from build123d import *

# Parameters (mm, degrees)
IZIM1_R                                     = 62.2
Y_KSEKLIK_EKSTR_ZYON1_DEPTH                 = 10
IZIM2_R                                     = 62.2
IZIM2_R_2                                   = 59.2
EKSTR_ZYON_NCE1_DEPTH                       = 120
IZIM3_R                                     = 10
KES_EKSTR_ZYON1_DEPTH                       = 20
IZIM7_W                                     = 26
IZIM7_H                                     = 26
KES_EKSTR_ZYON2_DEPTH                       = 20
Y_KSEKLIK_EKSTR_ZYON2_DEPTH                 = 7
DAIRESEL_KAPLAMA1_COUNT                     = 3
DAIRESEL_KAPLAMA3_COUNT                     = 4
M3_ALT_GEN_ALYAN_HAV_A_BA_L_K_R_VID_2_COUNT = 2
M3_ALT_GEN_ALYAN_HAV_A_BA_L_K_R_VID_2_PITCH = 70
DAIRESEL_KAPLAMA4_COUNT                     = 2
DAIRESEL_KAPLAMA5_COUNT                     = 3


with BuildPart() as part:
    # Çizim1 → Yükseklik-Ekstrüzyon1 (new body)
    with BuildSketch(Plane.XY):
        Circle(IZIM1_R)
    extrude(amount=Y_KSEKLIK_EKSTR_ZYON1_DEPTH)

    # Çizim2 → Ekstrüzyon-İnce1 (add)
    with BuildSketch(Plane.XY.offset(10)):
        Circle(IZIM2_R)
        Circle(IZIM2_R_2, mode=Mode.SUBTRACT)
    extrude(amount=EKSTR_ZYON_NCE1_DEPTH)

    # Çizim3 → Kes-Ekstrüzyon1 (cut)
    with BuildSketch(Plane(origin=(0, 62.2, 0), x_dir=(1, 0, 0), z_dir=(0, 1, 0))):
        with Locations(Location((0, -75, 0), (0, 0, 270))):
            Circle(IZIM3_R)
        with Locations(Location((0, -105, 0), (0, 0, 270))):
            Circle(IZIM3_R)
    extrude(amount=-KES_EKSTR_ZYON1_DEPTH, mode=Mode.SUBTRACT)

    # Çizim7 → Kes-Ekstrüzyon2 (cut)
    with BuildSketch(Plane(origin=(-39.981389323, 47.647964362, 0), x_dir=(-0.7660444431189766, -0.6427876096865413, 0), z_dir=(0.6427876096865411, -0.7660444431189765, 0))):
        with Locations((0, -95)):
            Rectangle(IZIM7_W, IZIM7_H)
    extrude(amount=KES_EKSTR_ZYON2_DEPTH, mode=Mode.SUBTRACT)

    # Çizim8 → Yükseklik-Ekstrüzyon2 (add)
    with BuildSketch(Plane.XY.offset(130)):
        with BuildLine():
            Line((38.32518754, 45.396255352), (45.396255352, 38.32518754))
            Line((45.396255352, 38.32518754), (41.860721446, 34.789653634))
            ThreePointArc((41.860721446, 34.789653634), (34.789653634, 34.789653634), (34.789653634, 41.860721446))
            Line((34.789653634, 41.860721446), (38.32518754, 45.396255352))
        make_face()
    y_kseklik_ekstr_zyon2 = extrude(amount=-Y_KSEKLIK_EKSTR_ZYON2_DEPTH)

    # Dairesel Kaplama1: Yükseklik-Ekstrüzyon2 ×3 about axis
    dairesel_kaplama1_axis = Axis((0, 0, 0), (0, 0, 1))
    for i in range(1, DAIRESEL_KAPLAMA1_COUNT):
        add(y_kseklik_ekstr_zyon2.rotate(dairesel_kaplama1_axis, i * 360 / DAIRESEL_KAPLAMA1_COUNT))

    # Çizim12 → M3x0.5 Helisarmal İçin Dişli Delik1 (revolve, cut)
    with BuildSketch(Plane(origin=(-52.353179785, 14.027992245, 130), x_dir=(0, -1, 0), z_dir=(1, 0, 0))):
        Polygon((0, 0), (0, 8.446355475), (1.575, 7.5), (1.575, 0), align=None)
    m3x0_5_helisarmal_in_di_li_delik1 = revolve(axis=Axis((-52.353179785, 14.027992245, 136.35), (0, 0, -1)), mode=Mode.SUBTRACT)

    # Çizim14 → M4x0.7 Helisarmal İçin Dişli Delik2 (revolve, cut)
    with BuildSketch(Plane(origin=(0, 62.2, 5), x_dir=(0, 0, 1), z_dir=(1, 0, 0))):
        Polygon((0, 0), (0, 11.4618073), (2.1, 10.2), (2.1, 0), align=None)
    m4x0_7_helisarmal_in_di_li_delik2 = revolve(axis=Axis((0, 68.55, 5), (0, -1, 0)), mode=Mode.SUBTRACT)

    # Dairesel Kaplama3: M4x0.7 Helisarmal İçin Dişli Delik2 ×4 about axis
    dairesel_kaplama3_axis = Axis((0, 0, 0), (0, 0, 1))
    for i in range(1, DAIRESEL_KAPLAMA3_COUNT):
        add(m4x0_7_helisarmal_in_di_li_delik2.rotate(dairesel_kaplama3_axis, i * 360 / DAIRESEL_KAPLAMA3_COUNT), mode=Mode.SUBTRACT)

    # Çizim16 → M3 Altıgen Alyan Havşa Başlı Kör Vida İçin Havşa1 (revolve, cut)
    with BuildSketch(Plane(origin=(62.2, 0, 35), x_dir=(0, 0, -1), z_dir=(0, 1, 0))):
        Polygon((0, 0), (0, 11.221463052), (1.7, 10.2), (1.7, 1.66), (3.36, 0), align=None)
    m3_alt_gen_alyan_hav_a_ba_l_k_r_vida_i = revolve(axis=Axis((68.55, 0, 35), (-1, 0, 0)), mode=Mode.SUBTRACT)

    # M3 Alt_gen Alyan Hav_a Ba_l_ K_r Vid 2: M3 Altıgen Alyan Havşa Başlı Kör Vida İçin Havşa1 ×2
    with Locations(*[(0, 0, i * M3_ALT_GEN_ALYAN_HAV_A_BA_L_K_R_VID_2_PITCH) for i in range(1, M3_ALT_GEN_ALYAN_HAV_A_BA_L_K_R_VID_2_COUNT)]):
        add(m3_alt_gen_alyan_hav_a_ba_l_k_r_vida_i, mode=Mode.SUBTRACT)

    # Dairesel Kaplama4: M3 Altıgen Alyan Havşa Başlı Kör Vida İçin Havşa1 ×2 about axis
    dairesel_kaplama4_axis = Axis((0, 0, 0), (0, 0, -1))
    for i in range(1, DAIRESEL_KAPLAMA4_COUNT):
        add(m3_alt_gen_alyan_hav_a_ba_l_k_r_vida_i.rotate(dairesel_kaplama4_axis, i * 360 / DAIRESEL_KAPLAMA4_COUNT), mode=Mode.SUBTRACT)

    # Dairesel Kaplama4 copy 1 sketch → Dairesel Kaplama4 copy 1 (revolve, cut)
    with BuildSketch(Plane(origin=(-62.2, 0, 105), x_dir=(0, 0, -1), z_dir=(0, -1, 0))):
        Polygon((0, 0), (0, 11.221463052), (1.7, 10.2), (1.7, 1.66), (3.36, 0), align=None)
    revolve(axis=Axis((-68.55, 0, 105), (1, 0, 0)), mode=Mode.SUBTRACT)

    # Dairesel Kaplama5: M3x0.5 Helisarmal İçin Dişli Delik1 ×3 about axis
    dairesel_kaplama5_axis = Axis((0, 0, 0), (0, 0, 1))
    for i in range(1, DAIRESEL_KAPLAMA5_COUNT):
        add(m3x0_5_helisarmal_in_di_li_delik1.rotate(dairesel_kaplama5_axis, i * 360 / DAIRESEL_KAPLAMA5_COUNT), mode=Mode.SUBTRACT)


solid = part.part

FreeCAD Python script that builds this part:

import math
import FreeCAD as App
import Part
import Sketcher

V = App.Vector
Q = App.Units.Quantity


def add_polygon(sketch, points):
    """Adds a closed chain of lines whose ends are joined by coincident constraints."""
    first, n = sketch.GeometryCount, len(points)
    for a, b in zip(points, points[1:] + points[:1]):
        sketch.addGeometry(Part.LineSegment(App.Vector(*a, 0), App.Vector(*b, 0)), False)
    for i in range(n):
        sketch.addConstraint(Sketcher.Constraint("Coincident", first + i, 2, first + (i + 1) % n, 1))

doc = App.newDocument("Part")
body = doc.addObject("PartDesign::Body", "Body")

sketch1 = doc.addObject("Sketcher::SketchObject", "Sketch")
body.addObject(sketch1)
sketch1.AttachmentSupport = (doc.XY_Plane, [""])
sketch1.MapMode = "FlatFace"
sketch1.addGeometry(Part.Circle(V(0, 0, 0), V(0, 0, 1), 62), False)
sketch1.addConstraint(Sketcher.Constraint("Coincident", 0, 3, -1, 1))
sketch1.addConstraint(Sketcher.Constraint("Diameter", 0, Q("124.4 mm")))
pad1 = doc.addObject("PartDesign::Pad", "Pad")
body.addObject(pad1)
pad1.Profile = sketch1
pad1.Length = 10

sketch2 = doc.addObject("Sketcher::SketchObject", "Sketch001")
body.addObject(sketch2)
sketch2.AttachmentSupport = (doc.XY_Plane, [""])
sketch2.MapMode = "FlatFace"
sketch2.AttachmentOffset = App.Placement(V(0, 0, 10), App.Rotation())
sketch2.addGeometry(Part.Circle(V(0, 0, 0), V(0, 0, 1), 62), False)
sketch2.addGeometry(Part.Circle(V(0, 0, 0), V(0, 0, 1), 59), False)
sketch2.addConstraint(Sketcher.Constraint("Coincident", 0, 3, -1, 1))
sketch2.addConstraint(Sketcher.Constraint("Coincident", 1, 3, -1, 1))
sketch2.addConstraint(Sketcher.Constraint("Diameter", 0, Q("124.4 mm")))
sketch2.addConstraint(Sketcher.Constraint("Diameter", 1, Q("118.4 mm")))
pad2 = doc.addObject("PartDesign::Pad", "Pad001")
body.addObject(pad2)
pad2.Profile = sketch2
pad2.Length = 120

sketch3 = doc.addObject("Sketcher::SketchObject", "Sketch002")
body.addObject(sketch3)
sketch3.AttachmentSupport = (doc.XZ_Plane, [""])
sketch3.MapMode = "FlatFace"
sketch3.AttachmentOffset = App.Placement(V(0, 0, -62.2), App.Rotation())
sketch3.addGeometry(Part.Circle(V(0, 75, 0), V(0, 0, 1), 10), False)
sketch3.addGeometry(Part.Circle(V(0, 105, 0), V(0, 0, 1), 10), False)
sketch3.addConstraint(Sketcher.Constraint("Equal", 0, 1))
sketch3.addConstraint(Sketcher.Constraint("PointOnObject", 0, 3, -2))
sketch3.addConstraint(Sketcher.Constraint("PointOnObject", 1, 3, -2))
sketch3.addConstraint(Sketcher.Constraint("Diameter", 0, Q("20 mm")))
sketch3.addConstraint(Sketcher.Constraint("DistanceY", -1, 1, 0, 3, Q("75 mm")))
sketch3.addConstraint(Sketcher.Constraint("DistanceY", -1, 1, 1, 3, Q("105 mm")))
pocket1 = doc.addObject("PartDesign::Pocket", "Pocket")
body.addObject(pocket1)
pocket1.Profile = sketch3
pocket1.Length = 20
pocket1.Reversed = True

sketch4 = doc.addObject("Sketcher::SketchObject", "Sketch003")
body.addObject(sketch4)
sketch4.Placement = App.Placement(V(-39.981389, 47.647964, 0), App.Rotation(V(-0.766044443, -0.64278761, 0), V(0, 0, -1), V(0.64278761, -0.766044443, 0), "ZXY"))
add_polygon(sketch4, [(-13, -82), (-13, -108), (13, -108), (13, -82)])
sketch4.addConstraint(Sketcher.Constraint("Vertical", 0))
sketch4.addConstraint(Sketcher.Constraint("Horizontal", 1))
sketch4.addConstraint(Sketcher.Constraint("Vertical", 2))
sketch4.addConstraint(Sketcher.Constraint("Horizontal", 3))
sketch4.addConstraint(Sketcher.Constraint("Equal", 3, 0))
sketch4.addConstraint(Sketcher.Constraint("DistanceX", 1, 1, 1, 2, Q("26 mm")))
sketch4.addConstraint(Sketcher.Constraint("DistanceX", 0, 2, -1, 1, Q("13 mm")))
sketch4.addConstraint(Sketcher.Constraint("DistanceY", 0, 2, -1, 1, Q("108 mm")))
pocket2 = doc.addObject("PartDesign::Pocket", "Pocket001")
body.addObject(pocket2)
pocket2.Profile = sketch4
pocket2.Length = 20
pocket2.Reversed = True

sketch5 = doc.addObject("Sketcher::SketchObject", "Sketch004")
body.addObject(sketch5)
sketch5.AttachmentSupport = (doc.XY_Plane, [""])
sketch5.MapMode = "FlatFace"
sketch5.AttachmentOffset = App.Placement(V(0, 0, 130), App.Rotation())
sketch5.addGeometry(Part.LineSegment(V(45, 38, 0), V(38, 45, 0)), False)
sketch5.addGeometry(Part.LineSegment(V(38, 45, 0), V(35, 42, 0)), False)
sketch5.addGeometry(Part.ArcOfCircle(Part.Circle(V(38, 38, 0), V(0, 0, 1), 5), math.radians(135), math.radians(315)), False)
sketch5.addGeometry(Part.LineSegment(V(42, 35, 0), V(45, 38, 0)), False)
sketch5.addConstraint(Sketcher.Constraint("Coincident", 0, 2, 1, 1))
sketch5.addConstraint(Sketcher.Constraint("Tangent", 1, 2, 2, 1))
sketch5.addConstraint(Sketcher.Constraint("Tangent", 2, 2, 3, 1))
sketch5.addConstraint(Sketcher.Constraint("Coincident", 3, 2, 0, 1))
sketch5.addConstraint(Sketcher.Constraint("Perpendicular", 0, 1))
sketch5.addConstraint(Sketcher.Constraint("Parallel", 1, 3))
sketch5.addConstraint(Sketcher.Constraint("Horizontal", 2, 3, 3, 2))
sketch5.addConstraint(Sketcher.Constraint("Vertical", 2, 3, 0, 2))
sketch5.addConstraint(Sketcher.Constraint("Radius", 2, Q("5 mm")))
sketch5.addConstraint(Sketcher.Constraint("DistanceY", -1, 1, 1, 2, Q("41.860721 mm")))
sketch5.addConstraint(Sketcher.Constraint("DistanceX", -1, 1, 2, 2, Q("41.860721 mm")))
pad3 = doc.addObject("PartDesign::Pad", "Pad002")
body.addObject(pad3)
pad3.Profile = sketch5
pad3.Length = 7
pad3.Reversed = True
doc.recompute()

polarpattern = doc.addObject("PartDesign::PolarPattern", "PolarPattern")
body.addObject(polarpattern)
polarpattern.Originals = [pad3]
polarpattern.Axis = (doc.Z_Axis, [""])
polarpattern.Angle = 360
polarpattern.Occurrences = 3
body.Tip = polarpattern

sketch6 = doc.addObject("Sketcher::SketchObject", "Sketch005")
body.addObject(sketch6)
sketch6.AttachmentSupport = (doc.YZ_Plane, [""])
sketch6.MapMode = "FlatFace"
sketch6.AttachmentOffset = App.Placement(V(0, 0, -52.35318), App.Rotation())
add_polygon(sketch6, [(14, 121.6), (14, 130), (12.5, 130), (12.5, 122.5)])
sketch6.addGeometry(Part.LineSegment(V(14, 130, 0), V(14, 121.6, 0)), True)
sketch6.addConstraint(Sketcher.Constraint("Vertical", 0))
sketch6.addConstraint(Sketcher.Constraint("Horizontal", 1))
sketch6.addConstraint(Sketcher.Constraint("Vertical", 2))
sketch6.addConstraint(Sketcher.Constraint("Vertical", 4))
sketch6.addConstraint(Sketcher.Constraint("Coincident", 4, 1, 0, 2))
sketch6.addConstraint(Sketcher.Constraint("Equal", 0, 4))
sketch6.addConstraint(Sketcher.Constraint("Angle", 3, Q("-31 deg")))
sketch6.addConstraint(Sketcher.Constraint("DistanceY", 2, 2, 2, 1, Q("7.5 mm")))
sketch6.addConstraint(Sketcher.Constraint("DistanceY", -1, 1, 0, 2, Q("130 mm")))
sketch6.addConstraint(Sketcher.Constraint("DistanceX", 1, 2, 1, 1, Q("1.575 mm")))
sketch6.addConstraint(Sketcher.Constraint("DistanceX", -1, 1, 0, 2, Q("14.027992 mm")))
groove = doc.addObject("PartDesign::Groove", "Groove")
body.addObject(groove)
groove.Profile = sketch6
groove.ReferenceAxis = (sketch6, ["Axis0"])
groove.Angle = 360

sketch7 = doc.addObject("Sketcher::SketchObject", "Sketch006")
body.addObject(sketch7)
sketch7.AttachmentSupport = (doc.YZ_Plane, [""])
sketch7.MapMode = "FlatFace"
add_polygon(sketch7, [(50.7, 5), (62.2, 5), (62.2, 7.1), (52, 7.1)])
sketch7.addGeometry(Part.LineSegment(V(62.2, 5, 0), V(50.7, 5, 0)), True)
sketch7.addConstraint(Sketcher.Constraint("Horizontal", 0))
sketch7.addConstraint(Sketcher.Constraint("Vertical", 1))
sketch7.addConstraint(Sketcher.Constraint("Horizontal", 2))
sketch7.addConstraint(Sketcher.Constraint("Horizontal", 4))
sketch7.addConstraint(Sketcher.Constraint("Coincident", 4, 1, 0, 2))
sketch7.addConstraint(Sketcher.Constraint("Equal", 0, 4))
sketch7.addConstraint(Sketcher.Constraint("Angle", 3, Q("-121 deg")))
sketch7.addConstraint(Sketcher.Constraint("DistanceX", 2, 2, 2, 1, Q("10.2 mm")))
sketch7.addConstraint(Sketcher.Constraint("DistanceY", 1, 1, 1, 2, Q("2.1 mm")))
sketch7.addConstraint(Sketcher.Constraint("DistanceY", -1, 1, 0, 2, Q("5 mm")))
sketch7.addConstraint(Sketcher.Constraint("DistanceX", -1, 1, 2, 2, Q("52 mm")))
groove2 = doc.addObject("PartDesign::Groove", "Groove001")
body.addObject(groove2)
groove2.Profile = sketch7
groove2.ReferenceAxis = (sketch7, ["Axis0"])
groove2.Angle = 360
doc.recompute()

polarpattern2 = doc.addObject("PartDesign::PolarPattern", "PolarPattern001")
body.addObject(polarpattern2)
polarpattern2.Originals = [groove2]
polarpattern2.Axis = (doc.Z_Axis, [""])
polarpattern2.Angle = 360
polarpattern2.Occurrences = 4
body.Tip = polarpattern2

sketch8 = doc.addObject("Sketcher::SketchObject", "Sketch007")
body.addObject(sketch8)
sketch8.AttachmentSupport = (doc.XZ_Plane, [""])
sketch8.MapMode = "FlatFace"
add_polygon(sketch8, [(51, 35), (62.2, 35), (62.2, 31.6), (60.5, 33.3), (52, 33.3)])
sketch8.addGeometry(Part.LineSegment(V(62.2, 35, 0), V(51, 35, 0)), True)
sketch8.addConstraint(Sketcher.Constraint("Horizontal", 0))
sketch8.addConstraint(Sketcher.Constraint("Vertical", 1))
sketch8.addConstraint(Sketcher.Constraint("Horizontal", 3))
sketch8.addConstraint(Sketcher.Constraint("Horizontal", 5))
sketch8.addConstraint(Sketcher.Constraint("Coincident", 5, 1, 0, 2))
sketch8.addConstraint(Sketcher.Constraint("Equal", 0, 5))
sketch8.addConstraint(Sketcher.Constraint("Angle", 2, Q("135 deg")))
sketch8.addConstraint(Sketcher.Constraint("Angle", 4, Q("121 deg")))
sketch8.addConstraint(Sketcher.Constraint("DistanceY", -1, 1, 0, 2, Q("35 mm")))
sketch8.addConstraint(Sketcher.Constraint("DistanceX", -1, 1, 3, 2, Q("52 mm")))
sketch8.addConstraint(Sketcher.Constraint("DistanceX", 3, 2, 3, 1, Q("8.54 mm")))
sketch8.addConstraint(Sketcher.Constraint("DistanceY", 1, 2, 1, 1, Q("3.36 mm")))
sketch8.addConstraint(Sketcher.Constraint("DistanceX", -1, 1, 0, 2, Q("62.2 mm")))
groove3 = doc.addObject("PartDesign::Groove", "Groove002")
body.addObject(groove3)
groove3.Profile = sketch8
groove3.ReferenceAxis = (sketch8, ["Axis0"])
groove3.Angle = 360
doc.recompute()

linearpattern = doc.addObject("PartDesign::LinearPattern", "LinearPattern")
body.addObject(linearpattern)
linearpattern.Originals = [groove3]
linearpattern.Direction = (doc.Z_Axis, [""])
linearpattern.Mode = "offset"
linearpattern.Offset = 70
linearpattern.Occurrences = 2
body.Tip = linearpattern
doc.recompute()

polarpattern3 = doc.addObject("PartDesign::PolarPattern", "PolarPattern002")
body.addObject(polarpattern3)
polarpattern3.Originals = [groove3]
polarpattern3.Axis = (doc.Z_Axis, [""])
polarpattern3.Angle = 360
polarpattern3.Occurrences = 2
body.Tip = polarpattern3

sketch9 = doc.addObject("Sketcher::SketchObject", "Sketch008")
body.addObject(sketch9)
sketch9.AttachmentSupport = (doc.XZ_Plane, [""])
sketch9.MapMode = "FlatFace"
add_polygon(sketch9, [(-51, 105), (-62.2, 105), (-62.2, 101.6), (-60.5, 103.3), (-52, 103.3)])
sketch9.addGeometry(Part.LineSegment(V(-62.2, 105, 0), V(-51, 105, 0)), True)
sketch9.addConstraint(Sketcher.Constraint("Horizontal", 0))
sketch9.addConstraint(Sketcher.Constraint("Vertical", 1))
sketch9.addConstraint(Sketcher.Constraint("Horizontal", 3))
sketch9.addConstraint(Sketcher.Constraint("Horizontal", 5))
sketch9.addConstraint(Sketcher.Constraint("Coincident", 5, 1, 0, 2))
sketch9.addConstraint(Sketcher.Constraint("Equal", 0, 5))
sketch9.addConstraint(Sketcher.Constraint("Angle", 2, Q("45 deg")))
sketch9.addConstraint(Sketcher.Constraint("Angle", 4, Q("59 deg")))
sketch9.addConstraint(Sketcher.Constraint("DistanceY", -1, 1, 0, 2, Q("105 mm")))
sketch9.addConstraint(Sketcher.Constraint("DistanceX", 3, 2, -1, 1, Q("52 mm")))
sketch9.addConstraint(Sketcher.Constraint("DistanceX", 3, 1, 3, 2, Q("8.54 mm")))
sketch9.addConstraint(Sketcher.Constraint("DistanceY", 1, 2, 1, 1, Q("3.36 mm")))
sketch9.addConstraint(Sketcher.Constraint("DistanceX", 0, 2, -1, 1, Q("62.2 mm")))
groove4 = doc.addObject("PartDesign::Groove", "Groove003")
body.addObject(groove4)
groove4.Profile = sketch9
groove4.ReferenceAxis = (sketch9, ["Axis0"])
groove4.Angle = 360
doc.recompute()

polarpattern4 = doc.addObject("PartDesign::PolarPattern", "PolarPattern003")
body.addObject(polarpattern4)
polarpattern4.Originals = [groove]
polarpattern4.Axis = (doc.Z_Axis, [""])
polarpattern4.Angle = 360
polarpattern4.Occurrences = 3
body.Tip = polarpattern4

doc.recompute()
